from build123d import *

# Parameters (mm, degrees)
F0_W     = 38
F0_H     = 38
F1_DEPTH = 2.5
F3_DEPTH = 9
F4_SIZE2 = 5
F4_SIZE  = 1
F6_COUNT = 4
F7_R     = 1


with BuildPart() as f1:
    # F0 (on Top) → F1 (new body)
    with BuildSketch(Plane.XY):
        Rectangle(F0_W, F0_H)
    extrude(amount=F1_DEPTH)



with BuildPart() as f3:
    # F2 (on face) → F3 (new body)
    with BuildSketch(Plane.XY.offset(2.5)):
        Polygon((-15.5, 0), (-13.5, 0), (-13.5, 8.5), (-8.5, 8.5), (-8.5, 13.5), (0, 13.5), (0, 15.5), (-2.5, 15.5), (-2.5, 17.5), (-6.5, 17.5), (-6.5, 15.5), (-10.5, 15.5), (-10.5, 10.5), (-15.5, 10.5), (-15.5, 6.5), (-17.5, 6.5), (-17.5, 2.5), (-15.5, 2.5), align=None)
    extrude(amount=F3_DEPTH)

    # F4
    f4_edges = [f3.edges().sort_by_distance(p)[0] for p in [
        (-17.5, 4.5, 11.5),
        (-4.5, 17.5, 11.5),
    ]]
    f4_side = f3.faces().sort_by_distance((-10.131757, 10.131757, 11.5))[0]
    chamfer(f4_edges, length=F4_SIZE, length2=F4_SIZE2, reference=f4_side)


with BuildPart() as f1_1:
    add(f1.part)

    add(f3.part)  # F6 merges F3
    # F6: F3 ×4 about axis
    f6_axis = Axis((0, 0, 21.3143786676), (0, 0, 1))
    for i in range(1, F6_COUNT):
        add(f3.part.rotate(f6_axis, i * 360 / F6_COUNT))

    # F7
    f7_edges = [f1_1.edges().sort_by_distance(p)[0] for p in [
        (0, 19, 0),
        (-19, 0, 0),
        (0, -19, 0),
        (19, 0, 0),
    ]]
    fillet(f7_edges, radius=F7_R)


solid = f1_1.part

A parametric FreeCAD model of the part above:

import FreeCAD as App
import Part
import Sketcher
Q = App.Units.Quantity


def edges_at(feature, points):
    """Names of the edges that pass closest to the given points."""
    edges = feature.Shape.Edges
    near = lambda p: min(range(len(edges)), key=lambda i: edges[i].distToShape(Part.Vertex(*p))[0])
    return sorted({f"Edge{near(p) + 1}" for p in points})


def add_polygon(sketch, points):
    """Adds a closed chain of lines whose ends are joined by coincident constraints."""
    first, n = sketch.GeometryCount, len(points)
    for a, b in zip(points, points[1:] + points[:1]):
        sketch.addGeometry(Part.LineSegment(App.Vector(*a, 0), App.Vector(*b, 0)), False)
    for i in range(n):
        sketch.addConstraint(Sketcher.Constraint("Coincident", first + i, 2, first + (i + 1) % n, 1))

doc = App.newDocument("Part")
params = doc.addObject("Spreadsheet::Sheet", "Params")
for row, (alias, value) in enumerate([
    ("sketch1_width", "38 mm"),
    ("pad1_length", "2.5 mm"),
    ("sketch2_width", "2 mm"),
    ("sketch2_width2", "5 mm"),
    ("sketch2_width3", "4 mm"),
    ("sketch2_width4", "8.5 mm"),
    ("pad2_length", "9 mm"),
    ("chamfer_size", "1 mm"),
    ("chamfer_size2", "5 mm"),
    ("fillet_radius", "1 mm"),
], start=1):
    params.set(f"A{row}", alias)
    params.set(f"B{row}", "=" + value)
    params.setAlias(f"B{row}", alias)

body = doc.addObject("PartDesign::Body", "Body")

# Sketch on XY plane
sketch1 = doc.addObject("Sketcher::SketchObject", "Sketch")
body.addObject(sketch1)
sketch1.AttachmentSupport = (doc.XY_Plane, [""])
sketch1.MapMode = "FlatFace"
add_polygon(sketch1, [(-19, 19), (-19, -19), (19, -19), (19, 19)])  # lines 0-3
sketch1.addConstraint(Sketcher.Constraint("Vertical", 0))
sketch1.addConstraint(Sketcher.Constraint("Horizontal", 1))
sketch1.addConstraint(Sketcher.Constraint("Vertical", 2))
sketch1.addConstraint(Sketcher.Constraint("Horizontal", 3))
sketch1.addConstraint(Sketcher.Constraint("Symmetric", 0, 2, 2, 2, -1, 1))
sketch1.addConstraint(Sketcher.Constraint("Equal", 3, 0))
sketch1.addConstraint(Sketcher.Constraint("DistanceX", 1, 1, 1, 2, Q("38 mm")))
sketch1.setExpression("Constraints[10]", "Params.sketch1_width")
pad1 = doc.addObject("PartDesign::Pad", "Pad")
body.addObject(pad1)
pad1.Profile = sketch1
pad1.setExpression("Length", "Params.pad1_length")
body2 = doc.addObject("PartDesign::Body", "Body001")

# Sketch on XY plane
sketch2 = doc.addObject("Sketcher::SketchObject", "Sketch001")
body2.addObject(sketch2)
sketch2.AttachmentSupport = (doc.getObject("XY_Plane001"), [""])
sketch2.MapMode = "FlatFace"
sketch2.AttachmentOffset = App.Placement(App.Vector(0, 0, 2.5), App.Rotation())
add_polygon(sketch2, [(-15.5, 0), (-13.5, 0), (-13.5, 8.5), (-8.5, 8.5), (-8.5, 13.5), (0, 13.5), (0, 15.5), (-2.5, 15.5), (-2.5, 17.5), (-6.5, 17.5), (-6.5, 15.5), (-10.5, 15.5), (-10.5, 10.5), (-15.5, 10.5), (-15.5, 6.5), (-17.5, 6.5), (-17.5, 2.5), (-15.5, 2.5)])  # lines 0-17
sketch2.addConstraint(Sketcher.Constraint("Horizontal", 0))
sketch2.addConstraint(Sketcher.Constraint("Vertical", 1))
sketch2.addConstraint(Sketcher.Constraint("Horizontal", 2))
sketch2.addConstraint(Sketcher.Constraint("Vertical", 3))
sketch2.addConstraint(Sketcher.Constraint("Horizontal", 4))
sketch2.addConstraint(Sketcher.Constraint("Vertical", 5))
sketch2.addConstraint(Sketcher.Constraint("Horizontal", 6))
sketch2.addConstraint(Sketcher.Constraint("Vertical", 7))
sketch2.addConstraint(Sketcher.Constraint("Horizontal", 8))
sketch2.addConstraint(Sketcher.Constraint("Vertical", 9))
sketch2.addConstraint(Sketcher.Constraint("Horizontal", 10))
sketch2.addConstraint(Sketcher.Constraint("Vertical", 11))
sketch2.addConstraint(Sketcher.Constraint("Horizontal", 12))
sketch2.addConstraint(Sketcher.Constraint("Vertical", 13))
sketch2.addConstraint(Sketcher.Constraint("Horizontal", 14))
sketch2.addConstraint(Sketcher.Constraint("Vertical", 15))
sketch2.addConstraint(Sketcher.Constraint("Horizontal", 16))
sketch2.addConstraint(Sketcher.Constraint("Vertical", 17))
sketch2.addConstraint(Sketcher.Constraint("PointOnObject", 0, 2, -1))
sketch2.addConstraint(Sketcher.Constraint("PointOnObject", 4, 2, -2))
sketch2.addConstraint(Sketcher.Constraint("Horizontal", 6, 2, 9, 2))
sketch2.addConstraint(Sketcher.Constraint("Vertical", 13, 2, 16, 2))
sketch2.addConstraint(Sketcher.Constraint("Equal", 8, 10))
sketch2.addConstraint(Sketcher.Constraint("Equal", 2, 12))
sketch2.addConstraint(Sketcher.Constraint("Equal", 0, 14))
sketch2.addConstraint(Sketcher.Constraint("Equal", 4, 1))
sketch2.addConstraint(Sketcher.Constraint("Equal", 12, 3))
sketch2.addConstraint(Sketcher.Constraint("Equal", 16, 5))
sketch2.addConstraint(Sketcher.Constraint("Equal", 5, 7))
sketch2.addConstraint(Sketcher.Constraint("Equal", 3, 11))
sketch2.addConstraint(Sketcher.Constraint("Equal", 10, 13))
sketch2.addConstraint(Sketcher.Constraint("Equal", 13, 15))
sketch2.addConstraint(Sketcher.Constraint("DistanceX", 0, 1, 0, 2, Q("2 mm")))
sketch2.addConstraint(Sketcher.Constraint("DistanceX", 2, 1, 2, 2, Q("5 mm")))
sketch2.addConstraint(Sketcher.Constraint("DistanceX", 8, 2, 8, 1, Q("4 mm")))
sketch2.addConstraint(Sketcher.Constraint("DistanceX", 4, 1, 4, 2, Q("8.5 mm")))
sketch2.setExpression("Constraints[50]", "Params.sketch2_width")
sketch2.setExpression("Constraints[51]", "Params.sketch2_width2")
sketch2.setExpression("Constraints[52]", "Params.sketch2_width3")
sketch2.setExpression("Constraints[53]", "Params.sketch2_width4")
pad2 = doc.addObject("PartDesign::Pad", "Pad001")
body2.addObject(pad2)
pad2.Profile = sketch2
pad2.setExpression("Length", "Params.pad2_length")
doc.recompute()

chamfer = doc.addObject("PartDesign::Chamfer", "Chamfer")
body2.addObject(chamfer)
chamfer.Base = (pad2, edges_at(pad2, [(-17.5, 4.5, 11.5), (-4.5, 17.5, 11.5)]))
chamfer.ChamferType = "Two distances"
chamfer.setExpression("Size", "Params.chamfer_size")
chamfer.setExpression("Size2", "Params.chamfer_size2")
chamfer.FlipDirection = True
doc.recompute()

body3 = doc.addObject("PartDesign::Body", "Body002")
body3.BaseFeature = body2
boolean = doc.addObject("PartDesign::Boolean", "Boolean")
body.addObject(boolean)
boolean.Type = "Fuse"
boolean.addObjects([body3])
doc.recompute()

body4 = doc.addObject("PartDesign::Body", "Body003")
body4.BaseFeature = body2
body4.Placement = App.Placement(App.Vector(0, 0, 0), App.Rotation(App.Vector(0, 0, 1), 90))
boolean2 = doc.addObject("PartDesign::Boolean", "Boolean001")
body.addObject(boolean2)
boolean2.Type = "Fuse"
boolean2.addObjects([body4])
doc.recompute()

body5 = doc.addObject("PartDesign::Body", "Body004")
body5.BaseFeature = body2
body5.Placement = App.Placement(App.Vector(0, 0, 0), App.Rotation(App.Vector(0, 0, 1), 180))
boolean3 = doc.addObject("PartDesign::Boolean", "Boolean002")
body.addObject(boolean3)
boolean3.Type = "Fuse"
boolean3.addObjects([body5])
doc.recompute()

body2.Placement = App.Placement(App.Vector(0, 0, 0), App.Rotation(App.Vector(0, 0, 1), 270))
boolean4 = doc.addObject("PartDesign::Boolean", "Boolean003")
body.addObject(boolean4)
boolean4.Type = "Fuse"
boolean4.addObjects([body2])
doc.recompute()

fillet = doc.addObject("PartDesign::Fillet", "Fillet")
body.addObject(fillet)
fillet.Base = (boolean4, edges_at(boolean4, [
    (0, 19, 0),
    (-19, 0, 0),
    (0, -19, 0),
    (19, 0, 0),
]))
fillet.setExpression("Radius", "Params.fillet_radius")

doc.recompute()
